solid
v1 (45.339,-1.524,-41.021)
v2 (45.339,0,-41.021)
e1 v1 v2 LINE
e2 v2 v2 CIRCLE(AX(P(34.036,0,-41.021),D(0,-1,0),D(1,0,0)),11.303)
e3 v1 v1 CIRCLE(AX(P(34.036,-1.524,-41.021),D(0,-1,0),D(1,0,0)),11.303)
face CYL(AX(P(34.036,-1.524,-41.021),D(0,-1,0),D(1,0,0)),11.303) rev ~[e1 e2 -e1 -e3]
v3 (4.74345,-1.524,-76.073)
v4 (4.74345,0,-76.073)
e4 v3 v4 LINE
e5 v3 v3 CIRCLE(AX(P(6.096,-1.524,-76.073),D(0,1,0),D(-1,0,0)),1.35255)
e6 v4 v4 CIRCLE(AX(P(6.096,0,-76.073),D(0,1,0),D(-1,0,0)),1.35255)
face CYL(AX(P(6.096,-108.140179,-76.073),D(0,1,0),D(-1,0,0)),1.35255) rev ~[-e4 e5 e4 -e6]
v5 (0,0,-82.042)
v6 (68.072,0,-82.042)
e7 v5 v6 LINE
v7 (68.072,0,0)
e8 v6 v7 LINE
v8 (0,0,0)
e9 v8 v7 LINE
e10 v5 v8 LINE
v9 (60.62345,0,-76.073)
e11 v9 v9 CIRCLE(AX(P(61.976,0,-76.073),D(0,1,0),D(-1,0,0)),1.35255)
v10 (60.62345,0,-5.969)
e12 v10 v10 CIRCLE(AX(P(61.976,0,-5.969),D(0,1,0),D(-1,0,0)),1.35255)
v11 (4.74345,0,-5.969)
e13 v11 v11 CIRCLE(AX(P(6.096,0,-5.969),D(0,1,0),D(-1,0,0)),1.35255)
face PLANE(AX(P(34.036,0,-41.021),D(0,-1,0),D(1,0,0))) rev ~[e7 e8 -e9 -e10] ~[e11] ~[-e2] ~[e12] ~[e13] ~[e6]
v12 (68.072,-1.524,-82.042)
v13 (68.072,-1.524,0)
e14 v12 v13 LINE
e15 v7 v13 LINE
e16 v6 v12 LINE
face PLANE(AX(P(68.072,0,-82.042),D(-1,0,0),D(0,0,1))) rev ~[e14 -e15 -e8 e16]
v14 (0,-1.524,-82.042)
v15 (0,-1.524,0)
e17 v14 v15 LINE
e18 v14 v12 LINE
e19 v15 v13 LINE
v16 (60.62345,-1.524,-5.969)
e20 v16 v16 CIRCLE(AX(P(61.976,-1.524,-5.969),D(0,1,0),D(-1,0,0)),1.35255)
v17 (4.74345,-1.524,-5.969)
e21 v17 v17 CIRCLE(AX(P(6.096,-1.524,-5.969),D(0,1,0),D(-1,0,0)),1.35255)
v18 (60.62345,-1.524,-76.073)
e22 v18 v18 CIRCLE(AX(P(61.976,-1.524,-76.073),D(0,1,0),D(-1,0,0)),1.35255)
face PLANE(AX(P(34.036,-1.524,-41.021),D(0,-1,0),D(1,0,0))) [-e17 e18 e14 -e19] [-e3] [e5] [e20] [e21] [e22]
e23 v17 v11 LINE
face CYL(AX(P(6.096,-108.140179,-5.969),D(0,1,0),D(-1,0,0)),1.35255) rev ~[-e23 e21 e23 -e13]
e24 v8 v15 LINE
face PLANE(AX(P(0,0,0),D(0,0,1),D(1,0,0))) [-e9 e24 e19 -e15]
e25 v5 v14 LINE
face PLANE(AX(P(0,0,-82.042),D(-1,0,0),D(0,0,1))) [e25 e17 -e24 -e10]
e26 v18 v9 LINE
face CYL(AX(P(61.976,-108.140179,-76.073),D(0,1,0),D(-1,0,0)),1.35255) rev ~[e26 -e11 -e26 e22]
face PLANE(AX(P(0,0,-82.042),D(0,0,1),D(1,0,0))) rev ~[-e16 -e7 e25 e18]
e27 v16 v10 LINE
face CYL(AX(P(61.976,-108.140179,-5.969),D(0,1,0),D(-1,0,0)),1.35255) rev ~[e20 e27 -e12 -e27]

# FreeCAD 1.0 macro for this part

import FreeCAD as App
import Part
import Sketcher

V = App.Vector
Q = App.Units.Quantity

doc = App.newDocument("Part")
body = doc.addObject("PartDesign::Body", "Body")

# Sketch on XZ plane
sketch1 = body.newObject("Sketcher::SketchObject", "Sketch")
sketch1.AttachmentSupport = (doc.getObject("XZ_Plane"), [""])
sketch1.MapMode = "FlatFace"
sketch1.addGeometry([
    Part.LineSegment(V(0, 0, 0), V(0, -82.042, 0)),
    Part.LineSegment(V(0, -82.042, 0), V(68.072, -82.042, 0)),
    Part.LineSegment(V(68.072, -82.042, 0), V(68.072, 0, 0)),
    Part.LineSegment(V(68.072, 0, 0), V(0, 0, 0)),
], False)
sketch1.addConstraint([
    Sketcher.Constraint("Coincident", 0, 2, 1, 1),
    Sketcher.Constraint("Coincident", 1, 2, 2, 1),
    Sketcher.Constraint("Coincident", 2, 2, 3, 1),
    Sketcher.Constraint("Coincident", 3, 2, 0, 1),
    Sketcher.Constraint("Vertical", 0),
    Sketcher.Constraint("Horizontal", 1),
    Sketcher.Constraint("Vertical", 2),
    Sketcher.Constraint("Horizontal", 3),
    Sketcher.Constraint("Coincident", 3, 2, -1, 1),
    Sketcher.Constraint("DistanceX", 1, 1, 1, 2, Q("2.68 in")),
    Sketcher.Constraint("DistanceY", 0, 2, 0, 1, Q("3.23 in")),
])
pad1 = body.newObject("PartDesign::Pad", "Pad")
pad1.Profile = sketch1
pad1.Length = Q("0.06 in")

# Sketch on XZ plane
sketch2 = body.newObject("Sketcher::SketchObject", "Sketch001")
sketch2.AttachmentSupport = (doc.getObject("XZ_Plane"), [""])
sketch2.MapMode = "FlatFace"
sketch2.AttachmentOffset = App.Placement(V(0, 0, 0.06 * 25.4), App.Rotation())
sketch2.addGeometry([
    Part.Circle(V(6.096, -5.969, 0), V(0, 0, 1), 1.35255),
    Part.Circle(V(61.976, -5.969, 0), V(0, 0, 1), 1.35255),
    Part.Circle(V(61.976, -76.073, 0), V(0, 0, 1), 1.35255),
    Part.Circle(V(6.096, -76.073, 0), V(0, 0, 1), 1.35255),
], False)
sketch2.addConstraint([
    Sketcher.Constraint("Equal", 0, 1),
    Sketcher.Constraint("Equal", 1, 2),
    Sketcher.Constraint("Equal", 2, 3),
    Sketcher.Constraint("Horizontal", 0, 3, 1, 3),
    Sketcher.Constraint("Horizontal", 2, 3, 3, 3),
    Sketcher.Constraint("Vertical", 1, 3, 2, 3),
    Sketcher.Constraint("Vertical", 0, 3, 3, 3),
    Sketcher.Constraint("Diameter", 0, Q("0.1065 in")),
    Sketcher.Constraint("DistanceX", 0, 3, 1, 3, Q("2.2 in")),
    Sketcher.Constraint("DistanceX", -1, 1, 0, 3, Q("0.24 in")),
    Sketcher.Constraint("DistanceY", 2, 3, 1, 3, Q("2.76 in")),
    Sketcher.Constraint("DistanceY", 0, 3, -1, 1, Q("0.235 in")),
])
doc.recompute()
hole = body.newObject("PartDesign::Hole", "Hole")
hole.Profile = sketch2
hole.ThreadType = "None"
hole.Diameter = Q("0.1065 in")
hole.DepthType = "ThroughAll"

# Sketch on XZ plane
sketch3 = body.newObject("Sketcher::SketchObject", "Sketch002")
sketch3.AttachmentSupport = (doc.getObject("XZ_Plane"), [""])
sketch3.MapMode = "FlatFace"
sketch3.AttachmentOffset = App.Placement(V(0, 0, 0.06 * 25.4), App.Rotation())
sketch3.addGeometry(Part.Circle(V(34.036, -41.021, 0), V(0, 0, 1), 11.303), False)
sketch3.addConstraint([
    Sketcher.Constraint("Diameter", 0, Q("0.89 in")),
    Sketcher.Constraint("DistanceX", -1, 1, 0, 3, Q("1.34 in")),
    Sketcher.Constraint("DistanceY", 0, 3, -1, 1, Q("1.615 in")),
])
pocket1 = body.newObject("PartDesign::Pocket", "Pocket")
pocket1.Profile = sketch3
pocket1.Type = "ThroughAll"

doc.recompute()
